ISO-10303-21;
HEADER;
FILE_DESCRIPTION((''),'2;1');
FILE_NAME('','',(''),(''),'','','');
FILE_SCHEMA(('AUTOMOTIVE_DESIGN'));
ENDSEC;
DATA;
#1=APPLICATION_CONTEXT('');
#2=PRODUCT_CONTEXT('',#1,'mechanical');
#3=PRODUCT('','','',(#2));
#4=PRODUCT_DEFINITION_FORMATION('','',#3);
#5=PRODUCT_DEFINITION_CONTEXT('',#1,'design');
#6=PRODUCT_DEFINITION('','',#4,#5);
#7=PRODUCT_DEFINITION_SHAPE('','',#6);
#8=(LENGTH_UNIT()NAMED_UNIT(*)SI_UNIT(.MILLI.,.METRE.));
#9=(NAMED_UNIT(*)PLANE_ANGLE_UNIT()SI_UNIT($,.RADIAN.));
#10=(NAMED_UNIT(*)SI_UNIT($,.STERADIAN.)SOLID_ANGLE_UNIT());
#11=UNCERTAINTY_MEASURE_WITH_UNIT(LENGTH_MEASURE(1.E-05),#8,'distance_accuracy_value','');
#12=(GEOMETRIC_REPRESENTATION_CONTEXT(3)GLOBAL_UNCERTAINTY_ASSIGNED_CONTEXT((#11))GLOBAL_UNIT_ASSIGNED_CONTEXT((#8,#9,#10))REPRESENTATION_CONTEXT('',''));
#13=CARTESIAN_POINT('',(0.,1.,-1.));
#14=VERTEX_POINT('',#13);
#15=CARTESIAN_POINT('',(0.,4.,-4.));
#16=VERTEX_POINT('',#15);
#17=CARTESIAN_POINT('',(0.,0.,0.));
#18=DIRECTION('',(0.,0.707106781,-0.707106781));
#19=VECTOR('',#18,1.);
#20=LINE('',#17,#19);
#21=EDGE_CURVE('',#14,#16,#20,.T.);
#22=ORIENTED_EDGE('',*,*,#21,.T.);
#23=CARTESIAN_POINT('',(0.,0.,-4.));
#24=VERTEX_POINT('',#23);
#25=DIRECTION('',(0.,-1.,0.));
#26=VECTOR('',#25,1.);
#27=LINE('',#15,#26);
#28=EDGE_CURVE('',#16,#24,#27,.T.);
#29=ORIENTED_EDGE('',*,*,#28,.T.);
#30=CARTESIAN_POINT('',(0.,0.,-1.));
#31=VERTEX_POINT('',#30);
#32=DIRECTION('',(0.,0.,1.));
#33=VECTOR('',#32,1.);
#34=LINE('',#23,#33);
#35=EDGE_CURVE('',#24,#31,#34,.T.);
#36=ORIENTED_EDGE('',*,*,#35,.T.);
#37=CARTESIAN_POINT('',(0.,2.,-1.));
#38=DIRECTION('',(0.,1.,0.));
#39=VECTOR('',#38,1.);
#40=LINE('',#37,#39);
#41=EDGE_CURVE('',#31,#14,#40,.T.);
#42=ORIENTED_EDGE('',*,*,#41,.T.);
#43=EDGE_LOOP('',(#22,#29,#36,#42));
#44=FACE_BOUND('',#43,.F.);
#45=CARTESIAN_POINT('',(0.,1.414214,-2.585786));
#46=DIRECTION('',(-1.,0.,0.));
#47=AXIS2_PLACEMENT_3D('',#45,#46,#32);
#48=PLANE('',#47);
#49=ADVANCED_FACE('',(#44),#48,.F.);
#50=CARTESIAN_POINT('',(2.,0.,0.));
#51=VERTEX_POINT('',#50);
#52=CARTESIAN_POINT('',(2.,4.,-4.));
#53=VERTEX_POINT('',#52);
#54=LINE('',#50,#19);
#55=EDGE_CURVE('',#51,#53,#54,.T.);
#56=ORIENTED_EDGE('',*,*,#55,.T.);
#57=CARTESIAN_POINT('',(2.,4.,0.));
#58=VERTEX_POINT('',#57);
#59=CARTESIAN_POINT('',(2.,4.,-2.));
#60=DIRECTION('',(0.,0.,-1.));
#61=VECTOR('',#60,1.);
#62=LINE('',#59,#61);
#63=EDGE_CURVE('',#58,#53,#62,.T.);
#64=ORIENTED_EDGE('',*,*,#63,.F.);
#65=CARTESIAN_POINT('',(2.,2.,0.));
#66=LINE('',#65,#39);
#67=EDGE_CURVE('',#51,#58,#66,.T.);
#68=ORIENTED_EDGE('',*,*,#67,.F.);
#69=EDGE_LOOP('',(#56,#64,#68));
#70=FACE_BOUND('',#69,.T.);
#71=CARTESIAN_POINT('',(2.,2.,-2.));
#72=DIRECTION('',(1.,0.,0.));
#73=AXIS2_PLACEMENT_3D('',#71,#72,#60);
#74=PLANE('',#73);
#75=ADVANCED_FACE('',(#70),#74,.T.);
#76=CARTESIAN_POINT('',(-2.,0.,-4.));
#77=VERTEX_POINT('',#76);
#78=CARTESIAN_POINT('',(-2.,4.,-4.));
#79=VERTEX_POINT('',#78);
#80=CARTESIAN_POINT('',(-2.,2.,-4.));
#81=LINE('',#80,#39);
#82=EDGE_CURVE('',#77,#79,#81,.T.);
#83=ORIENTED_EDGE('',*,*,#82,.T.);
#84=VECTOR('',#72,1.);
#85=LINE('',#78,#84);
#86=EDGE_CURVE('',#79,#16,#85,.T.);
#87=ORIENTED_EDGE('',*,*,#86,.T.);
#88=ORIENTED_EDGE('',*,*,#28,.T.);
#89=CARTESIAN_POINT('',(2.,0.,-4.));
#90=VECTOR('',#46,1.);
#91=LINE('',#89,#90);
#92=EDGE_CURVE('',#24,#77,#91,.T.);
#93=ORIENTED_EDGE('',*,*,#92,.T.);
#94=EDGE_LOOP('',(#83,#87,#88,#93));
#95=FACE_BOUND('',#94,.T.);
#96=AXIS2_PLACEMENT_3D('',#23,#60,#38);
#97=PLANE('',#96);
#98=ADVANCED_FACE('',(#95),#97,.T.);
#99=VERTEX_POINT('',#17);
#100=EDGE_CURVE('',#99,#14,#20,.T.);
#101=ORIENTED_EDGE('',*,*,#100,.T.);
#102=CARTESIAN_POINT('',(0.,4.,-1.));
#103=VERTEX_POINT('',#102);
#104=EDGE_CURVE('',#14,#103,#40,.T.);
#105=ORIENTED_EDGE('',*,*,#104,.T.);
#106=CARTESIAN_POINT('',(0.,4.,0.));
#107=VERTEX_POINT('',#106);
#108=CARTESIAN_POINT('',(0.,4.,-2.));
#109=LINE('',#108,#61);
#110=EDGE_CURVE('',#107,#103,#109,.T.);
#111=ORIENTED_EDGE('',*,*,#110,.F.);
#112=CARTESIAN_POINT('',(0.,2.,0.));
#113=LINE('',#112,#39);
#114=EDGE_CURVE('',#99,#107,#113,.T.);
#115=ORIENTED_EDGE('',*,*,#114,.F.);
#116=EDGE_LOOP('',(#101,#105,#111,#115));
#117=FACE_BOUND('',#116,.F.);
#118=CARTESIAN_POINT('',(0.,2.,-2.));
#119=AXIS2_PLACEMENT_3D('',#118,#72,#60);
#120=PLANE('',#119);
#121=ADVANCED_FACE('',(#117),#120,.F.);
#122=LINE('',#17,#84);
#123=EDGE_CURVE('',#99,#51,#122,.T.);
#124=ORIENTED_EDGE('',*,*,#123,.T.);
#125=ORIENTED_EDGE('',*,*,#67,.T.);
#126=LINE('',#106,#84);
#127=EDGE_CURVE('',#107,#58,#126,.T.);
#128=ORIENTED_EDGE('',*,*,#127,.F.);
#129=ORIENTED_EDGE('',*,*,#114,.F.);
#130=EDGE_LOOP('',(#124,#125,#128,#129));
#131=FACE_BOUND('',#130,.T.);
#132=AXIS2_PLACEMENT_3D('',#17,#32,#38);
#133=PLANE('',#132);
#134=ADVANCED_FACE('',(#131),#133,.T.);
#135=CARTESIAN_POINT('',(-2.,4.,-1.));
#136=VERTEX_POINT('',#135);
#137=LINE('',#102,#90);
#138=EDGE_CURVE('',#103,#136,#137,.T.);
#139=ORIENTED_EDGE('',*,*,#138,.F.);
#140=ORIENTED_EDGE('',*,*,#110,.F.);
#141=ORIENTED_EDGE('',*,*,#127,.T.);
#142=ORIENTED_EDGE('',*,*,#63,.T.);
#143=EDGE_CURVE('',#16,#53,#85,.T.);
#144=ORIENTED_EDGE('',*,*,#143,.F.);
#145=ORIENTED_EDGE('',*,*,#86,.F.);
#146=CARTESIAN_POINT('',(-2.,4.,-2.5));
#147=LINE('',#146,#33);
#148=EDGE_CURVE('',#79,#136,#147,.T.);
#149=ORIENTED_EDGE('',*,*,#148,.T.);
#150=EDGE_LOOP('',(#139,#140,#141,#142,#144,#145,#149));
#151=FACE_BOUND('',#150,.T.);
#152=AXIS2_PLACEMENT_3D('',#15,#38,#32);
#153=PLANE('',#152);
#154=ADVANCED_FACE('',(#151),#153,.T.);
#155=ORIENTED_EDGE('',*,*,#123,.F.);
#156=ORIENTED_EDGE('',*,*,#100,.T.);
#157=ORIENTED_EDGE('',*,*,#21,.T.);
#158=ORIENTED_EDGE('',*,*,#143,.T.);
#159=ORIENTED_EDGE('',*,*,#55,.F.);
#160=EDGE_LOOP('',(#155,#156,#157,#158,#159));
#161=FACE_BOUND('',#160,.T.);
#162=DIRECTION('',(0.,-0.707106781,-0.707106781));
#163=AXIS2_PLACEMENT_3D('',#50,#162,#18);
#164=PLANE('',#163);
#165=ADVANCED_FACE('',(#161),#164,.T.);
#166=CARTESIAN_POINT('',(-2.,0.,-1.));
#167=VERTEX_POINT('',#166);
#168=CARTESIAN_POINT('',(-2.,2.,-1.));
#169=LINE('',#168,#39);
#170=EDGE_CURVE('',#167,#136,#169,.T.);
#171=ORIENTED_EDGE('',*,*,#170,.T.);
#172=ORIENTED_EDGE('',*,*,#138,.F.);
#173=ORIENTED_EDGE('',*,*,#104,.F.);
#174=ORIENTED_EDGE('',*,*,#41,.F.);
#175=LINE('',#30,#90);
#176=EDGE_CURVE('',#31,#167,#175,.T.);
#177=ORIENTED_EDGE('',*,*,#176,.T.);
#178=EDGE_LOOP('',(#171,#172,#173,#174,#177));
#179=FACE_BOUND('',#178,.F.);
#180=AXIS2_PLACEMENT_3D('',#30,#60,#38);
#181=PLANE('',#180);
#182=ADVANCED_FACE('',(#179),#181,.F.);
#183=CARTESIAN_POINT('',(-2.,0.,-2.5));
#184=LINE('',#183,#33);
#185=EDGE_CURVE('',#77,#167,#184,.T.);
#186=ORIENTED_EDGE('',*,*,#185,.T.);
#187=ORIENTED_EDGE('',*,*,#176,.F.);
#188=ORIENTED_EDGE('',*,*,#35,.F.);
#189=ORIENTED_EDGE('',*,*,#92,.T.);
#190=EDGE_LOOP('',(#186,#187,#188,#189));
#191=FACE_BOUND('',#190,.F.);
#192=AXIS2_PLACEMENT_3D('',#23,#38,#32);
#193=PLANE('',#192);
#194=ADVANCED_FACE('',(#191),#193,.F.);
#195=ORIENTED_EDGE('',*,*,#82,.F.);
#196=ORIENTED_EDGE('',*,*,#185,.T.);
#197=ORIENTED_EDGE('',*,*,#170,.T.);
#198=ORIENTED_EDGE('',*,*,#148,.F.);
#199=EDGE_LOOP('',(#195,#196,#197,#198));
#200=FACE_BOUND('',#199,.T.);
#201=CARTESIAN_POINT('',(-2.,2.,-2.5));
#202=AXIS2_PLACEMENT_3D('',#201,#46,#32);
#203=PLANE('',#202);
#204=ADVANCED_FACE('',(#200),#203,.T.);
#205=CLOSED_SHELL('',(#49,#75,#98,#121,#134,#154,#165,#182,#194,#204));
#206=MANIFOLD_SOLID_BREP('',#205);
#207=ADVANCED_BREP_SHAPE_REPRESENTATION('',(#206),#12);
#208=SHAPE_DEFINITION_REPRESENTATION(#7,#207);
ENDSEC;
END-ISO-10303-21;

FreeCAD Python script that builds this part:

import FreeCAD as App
import Part
import Sketcher

V = App.Vector


def add_polygon(sketch, points):
    """Adds a closed chain of lines whose ends are joined by coincident constraints."""
    first, n = sketch.GeometryCount, len(points)
    for a, b in zip(points, points[1:] + points[:1]):
        sketch.addGeometry(Part.LineSegment(App.Vector(*a, 0), App.Vector(*b, 0)), False)
    for i in range(n):
        sketch.addConstraint(Sketcher.Constraint("Coincident", first + i, 2, first + (i + 1) % n, 1))

doc = App.newDocument("Part")
params = doc.addObject("Spreadsheet::Sheet", "Params")
for row, (alias, value) in enumerate([
    ("sketch1_width", "4 mm"),
    ("pad1_length", "2 mm"),
    ("sketch2_width", "4 mm"),
    ("sketch2_height", "3 mm"),
    ("pad2_length", "2 mm"),
    ("sketch3_width", "4 mm"),
    ("pocket1_length", "2 mm"),
], start=1):
    params.set(f"A{row}", alias)
    params.set(f"B{row}", "=" + value)
    params.setAlias(f"B{row}", alias)

body = doc.addObject("PartDesign::Body", "Body")

# Sketch on YZ plane
sketch1 = doc.addObject("Sketcher::SketchObject", "Sketch")
body.addObject(sketch1)
sketch1.AttachmentSupport = (doc.YZ_Plane, [""])
sketch1.MapMode = "FlatFace"
add_polygon(sketch1, [(4, 0), (0, 0), (0, -4), (4, -4)])  # lines 0-3
sketch1.addConstraint([
    Sketcher.Constraint("Horizontal", 0),
    Sketcher.Constraint("Vertical", 1),
    Sketcher.Constraint("Horizontal", 2),
    Sketcher.Constraint("Vertical", 3),
    Sketcher.Constraint("Coincident", 0, 2, -1, 1),
    Sketcher.Constraint("Equal", 2, 1),
    Sketcher.Constraint("DistanceX", 0, 2, 0, 1, 4.0),
])
sketch1.setExpression("Constraints[10]", "Params.sketch1_width")
pad1 = doc.addObject("PartDesign::Pad", "Pad")
body.addObject(pad1)
pad1.Profile = sketch1
pad1.setExpression("Length", "Params.pad1_length")

# Sketch on YZ plane
sketch2 = doc.addObject("Sketcher::SketchObject", "Sketch001")
body.addObject(sketch2)
sketch2.AttachmentSupport = (doc.YZ_Plane, [""])
sketch2.MapMode = "FlatFace"
add_polygon(sketch2, [(4, -4), (0, -4), (0, -1), (4, -1)])  # lines 0-3
sketch2.addConstraint([
    Sketcher.Constraint("Horizontal", 0),
    Sketcher.Constraint("Vertical", 1),
    Sketcher.Constraint("Horizontal", 2),
    Sketcher.Constraint("Vertical", 3),
    Sketcher.Constraint("PointOnObject", 0, 2, -2),
    Sketcher.Constraint("DistanceX", 0, 2, 0, 1, 4.0),
    Sketcher.Constraint("DistanceY", 1, 1, 1, 2, 3.0),
    Sketcher.Constraint("DistanceY", 0, 2, -1, 1, 4.0),
])
sketch2.setExpression("Constraints[9]", "Params.sketch2_width")
sketch2.setExpression("Constraints[10]", "Params.sketch2_height")
pad2 = doc.addObject("PartDesign::Pad", "Pad001")
body.addObject(pad2)
pad2.Profile = sketch2
pad2.setExpression("Length", "Params.pad2_length")
pad2.Reversed = True

# Sketch on YZ plane
sketch3 = doc.addObject("Sketcher::SketchObject", "Sketch002")
body.addObject(sketch3)
sketch3.AttachmentSupport = (doc.YZ_Plane, [""])
sketch3.MapMode = "FlatFace"
sketch3.AttachmentOffset = App.Placement(V(0, 0, 2), App.Rotation())
add_polygon(sketch3, [(4, -4), (0, 0), (0, -4)])  # lines 0-2
sketch3.addConstraint([
    Sketcher.Constraint("Vertical", 1),
    Sketcher.Constraint("Horizontal", 2),
    Sketcher.Constraint("Coincident", 0, 2, -1, 1),
    Sketcher.Constraint("Equal", 2, 1),
    Sketcher.Constraint("DistanceX", 2, 1, 2, 2, 4.0),
])
sketch3.setExpression("Constraints[7]", "Params.sketch3_width")
pocket1 = doc.addObject("PartDesign::Pocket", "Pocket")
body.addObject(pocket1)
pocket1.Profile = sketch3
pocket1.setExpression("Length", "Params.pocket1_length")

doc.recompute()
